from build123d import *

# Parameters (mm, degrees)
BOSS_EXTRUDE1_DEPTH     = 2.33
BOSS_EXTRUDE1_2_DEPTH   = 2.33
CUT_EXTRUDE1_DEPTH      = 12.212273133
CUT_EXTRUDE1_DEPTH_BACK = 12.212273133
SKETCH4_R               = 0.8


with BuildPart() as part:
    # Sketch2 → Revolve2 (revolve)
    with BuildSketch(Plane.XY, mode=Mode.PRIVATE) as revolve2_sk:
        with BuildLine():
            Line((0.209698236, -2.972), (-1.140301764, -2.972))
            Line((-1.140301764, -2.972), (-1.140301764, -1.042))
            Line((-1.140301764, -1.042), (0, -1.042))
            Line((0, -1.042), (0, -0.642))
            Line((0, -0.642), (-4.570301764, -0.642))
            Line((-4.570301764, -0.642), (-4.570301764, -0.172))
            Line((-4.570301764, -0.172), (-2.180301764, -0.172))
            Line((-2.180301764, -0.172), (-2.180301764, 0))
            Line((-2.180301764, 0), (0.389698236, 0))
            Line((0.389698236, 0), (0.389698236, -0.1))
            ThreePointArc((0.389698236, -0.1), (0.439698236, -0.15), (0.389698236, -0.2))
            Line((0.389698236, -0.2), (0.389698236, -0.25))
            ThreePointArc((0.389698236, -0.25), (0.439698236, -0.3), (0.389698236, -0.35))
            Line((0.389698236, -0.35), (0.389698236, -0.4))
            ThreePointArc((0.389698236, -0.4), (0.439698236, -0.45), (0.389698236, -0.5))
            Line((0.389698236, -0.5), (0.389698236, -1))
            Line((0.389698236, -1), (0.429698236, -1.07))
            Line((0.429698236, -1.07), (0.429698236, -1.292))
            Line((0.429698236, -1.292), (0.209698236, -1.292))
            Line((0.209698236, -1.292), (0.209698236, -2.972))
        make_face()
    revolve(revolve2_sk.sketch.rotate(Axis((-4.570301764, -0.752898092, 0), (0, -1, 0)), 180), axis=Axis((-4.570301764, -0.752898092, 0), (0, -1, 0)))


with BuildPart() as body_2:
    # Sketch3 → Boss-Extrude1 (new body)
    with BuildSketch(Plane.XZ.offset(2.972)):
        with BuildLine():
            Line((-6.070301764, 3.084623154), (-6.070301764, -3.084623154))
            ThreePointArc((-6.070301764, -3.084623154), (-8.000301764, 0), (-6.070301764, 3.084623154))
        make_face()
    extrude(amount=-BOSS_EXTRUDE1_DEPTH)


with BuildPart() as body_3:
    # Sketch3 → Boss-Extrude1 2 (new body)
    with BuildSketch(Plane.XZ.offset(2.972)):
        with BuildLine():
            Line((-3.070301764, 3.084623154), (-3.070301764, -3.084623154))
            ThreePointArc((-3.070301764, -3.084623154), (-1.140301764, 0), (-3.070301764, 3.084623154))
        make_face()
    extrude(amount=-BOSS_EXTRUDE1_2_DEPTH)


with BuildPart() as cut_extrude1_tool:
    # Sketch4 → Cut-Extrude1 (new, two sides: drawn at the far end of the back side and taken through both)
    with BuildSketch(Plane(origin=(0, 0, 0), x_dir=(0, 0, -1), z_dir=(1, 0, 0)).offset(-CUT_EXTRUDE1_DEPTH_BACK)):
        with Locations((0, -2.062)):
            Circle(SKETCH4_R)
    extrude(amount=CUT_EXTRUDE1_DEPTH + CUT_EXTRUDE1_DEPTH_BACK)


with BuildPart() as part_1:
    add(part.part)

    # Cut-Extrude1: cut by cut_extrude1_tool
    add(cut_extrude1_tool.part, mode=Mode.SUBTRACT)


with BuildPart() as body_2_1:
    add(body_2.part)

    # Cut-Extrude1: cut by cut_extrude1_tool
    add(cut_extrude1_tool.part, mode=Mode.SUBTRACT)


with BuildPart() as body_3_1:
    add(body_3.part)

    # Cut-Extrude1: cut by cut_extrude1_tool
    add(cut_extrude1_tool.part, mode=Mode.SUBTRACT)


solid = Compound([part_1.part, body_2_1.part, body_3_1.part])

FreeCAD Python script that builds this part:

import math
import FreeCAD as App
import Part
import Sketcher
from FreeCAD import Vector
Q = App.Units.Quantity

doc = App.newDocument("Part")
body = doc.addObject("PartDesign::Body", "Body")

# Sketch on XY plane
sketch1 = body.newObject("Sketcher::SketchObject", "Sketch")
sketch1.AttachmentSupport = (doc.getObject("XY_Plane"), [""])
sketch1.MapMode = "FlatFace"
sketch1.addGeometry(Part.LineSegment(Vector(-1.140302, -2.972, 0), Vector(0.209698, -2.972, 0)), False)
sketch1.addGeometry(Part.LineSegment(Vector(0.209698, -2.972, 0), Vector(0.209698, -1.292, 0)), False)
sketch1.addGeometry(Part.LineSegment(Vector(0.209698, -1.292, 0), Vector(0.429698, -1.292, 0)), False)
sketch1.addGeometry(Part.LineSegment(Vector(0.429698, -1.292, 0), Vector(0.429698, -1.07, 0)), False)
sketch1.addGeometry(Part.LineSegment(Vector(0.429698, -1.07, 0), Vector(0.389698, -1, 0)), False)
sketch1.addGeometry(Part.LineSegment(Vector(0.389698, -1, 0), Vector(0.389698, -0.5, 0)), False)
sketch1.addGeometry(Part.ArcOfCircle(Part.Circle(Vector(0.389698, -0.45, 0), Vector(0, 0, 1), 0.05), math.radians(-90), math.radians(90)), False)
sketch1.addGeometry(Part.LineSegment(Vector(0.389698, -0.4, 0), Vector(0.389698, -0.35, 0)), False)
sketch1.addGeometry(Part.ArcOfCircle(Part.Circle(Vector(0.389698, -0.3, 0), Vector(0, 0, 1), 0.05), math.radians(-90), math.radians(90)), False)
sketch1.addGeometry(Part.LineSegment(Vector(0.389698, -0.25, 0), Vector(0.389698, -0.2, 0)), False)
sketch1.addGeometry(Part.ArcOfCircle(Part.Circle(Vector(0.389698, -0.15, 0), Vector(0, 0, 1), 0.05), math.radians(-90), math.radians(90)), False)
sketch1.addGeometry(Part.LineSegment(Vector(0.389698, -0.1, 0), Vector(0.389698, 0, 0)), False)
sketch1.addGeometry(Part.LineSegment(Vector(0.389698, 0, 0), Vector(-2.180302, 0, 0)), False)
sketch1.addGeometry(Part.LineSegment(Vector(-2.180302, 0, 0), Vector(-2.180302, -0.172, 0)), False)
sketch1.addGeometry(Part.LineSegment(Vector(-2.180302, -0.172, 0), Vector(-4.570302, -0.172, 0)), False)
sketch1.addGeometry(Part.LineSegment(Vector(-4.570302, -0.172, 0), Vector(-4.570302, -0.642, 0)), False)
sketch1.addGeometry(Part.LineSegment(Vector(-4.570302, -0.642, 0), Vector(0, -0.642, 0)), False)
sketch1.addGeometry(Part.LineSegment(Vector(0, -0.642, 0), Vector(0, -1.042, 0)), False)
sketch1.addGeometry(Part.LineSegment(Vector(0, -1.042, 0), Vector(-1.140302, -1.042, 0)), False)
sketch1.addGeometry(Part.LineSegment(Vector(-1.140302, -1.042, 0), Vector(-1.140302, -2.972, 0)), False)
sketch1.addGeometry(Part.LineSegment(Vector(-4.570302, 0, 0), Vector(-4.570302, -2.972, 0)), True)  # axis
sketch1.addConstraint(Sketcher.Constraint("Coincident", 0, 2, 1, 1))
sketch1.addConstraint(Sketcher.Constraint("Coincident", 1, 2, 2, 1))
sketch1.addConstraint(Sketcher.Constraint("Coincident", 2, 2, 3, 1))
sketch1.addConstraint(Sketcher.Constraint("Coincident", 3, 2, 4, 1))
sketch1.addConstraint(Sketcher.Constraint("Coincident", 4, 2, 5, 1))
sketch1.addConstraint(Sketcher.Constraint("Coincident", 5, 2, 6, 1))
sketch1.addConstraint(Sketcher.Constraint("Coincident", 6, 2, 7, 1))
sketch1.addConstraint(Sketcher.Constraint("Coincident", 7, 2, 8, 1))
sketch1.addConstraint(Sketcher.Constraint("Coincident", 8, 2, 9, 1))
sketch1.addConstraint(Sketcher.Constraint("Coincident", 9, 2, 10, 1))
sketch1.addConstraint(Sketcher.Constraint("Coincident", 10, 2, 11, 1))
sketch1.addConstraint(Sketcher.Constraint("Coincident", 11, 2, 12, 1))
sketch1.addConstraint(Sketcher.Constraint("Coincident", 12, 2, 13, 1))
sketch1.addConstraint(Sketcher.Constraint("Coincident", 13, 2, 14, 1))
sketch1.addConstraint(Sketcher.Constraint("Coincident", 14, 2, 15, 1))
sketch1.addConstraint(Sketcher.Constraint("Coincident", 15, 2, 16, 1))
sketch1.addConstraint(Sketcher.Constraint("Coincident", 16, 2, 17, 1))
sketch1.addConstraint(Sketcher.Constraint("Coincident", 17, 2, 18, 1))
sketch1.addConstraint(Sketcher.Constraint("Coincident", 18, 2, 19, 1))
sketch1.addConstraint(Sketcher.Constraint("Coincident", 19, 2, 0, 1))
sketch1.addConstraint(Sketcher.Constraint("Horizontal", 0))
sketch1.addConstraint(Sketcher.Constraint("Vertical", 1))
sketch1.addConstraint(Sketcher.Constraint("Horizontal", 2))
sketch1.addConstraint(Sketcher.Constraint("Vertical", 3))
sketch1.addConstraint(Sketcher.Constraint("Vertical", 5))
sketch1.addConstraint(Sketcher.Constraint("Vertical", 7))
sketch1.addConstraint(Sketcher.Constraint("Vertical", 9))
sketch1.addConstraint(Sketcher.Constraint("Vertical", 11))
sketch1.addConstraint(Sketcher.Constraint("Horizontal", 12))
sketch1.addConstraint(Sketcher.Constraint("Vertical", 13))
sketch1.addConstraint(Sketcher.Constraint("Horizontal", 14))
sketch1.addConstraint(Sketcher.Constraint("Vertical", 15))
sketch1.addConstraint(Sketcher.Constraint("Horizontal", 16))
sketch1.addConstraint(Sketcher.Constraint("Vertical", 17))
sketch1.addConstraint(Sketcher.Constraint("Horizontal", 18))
sketch1.addConstraint(Sketcher.Constraint("Vertical", 19))
sketch1.addConstraint(Sketcher.Constraint("Vertical", 20))
sketch1.addConstraint(Sketcher.Constraint("Equal", 6, 8))
sketch1.addConstraint(Sketcher.Constraint("Equal", 8, 10))
sketch1.addConstraint(Sketcher.Constraint("PointOnObject", 11, 2, -1))
sketch1.addConstraint(Sketcher.Constraint("PointOnObject", 16, 2, -2))
sketch1.addConstraint(Sketcher.Constraint("PointOnObject", 20, 1, -1))
sketch1.addConstraint(Sketcher.Constraint("Horizontal", 19, 2, 20, 2))
sketch1.addConstraint(Sketcher.Constraint("Vertical", 6, 3, 8, 3))
sketch1.addConstraint(Sketcher.Constraint("Vertical", 8, 3, 10, 3))
sketch1.addConstraint(Sketcher.Constraint("Vertical", 10, 3, 4, 2))
sketch1.addConstraint(Sketcher.Constraint("Vertical", 5, 2, 6, 2))
sketch1.addConstraint(Sketcher.Constraint("Vertical", 7, 2, 8, 2))
sketch1.addConstraint(Sketcher.Constraint("Vertical", 9, 2, 10, 2))
sketch1.addConstraint(Sketcher.Constraint("Vertical", 15, 2, 20, 1))
sketch1.addConstraint(Sketcher.Constraint("Equal", 7, 9))
sketch1.addConstraint(Sketcher.Constraint("Radius", 6, Q("0.05 mm")))
sketch1.addConstraint(Sketcher.Constraint("DistanceY", 5, 1, 5, 2, Q("0.5 mm")))
sketch1.addConstraint(Sketcher.Constraint("DistanceY", 11, 1, 11, 2, Q("0.1 mm")))
sketch1.addConstraint(Sketcher.Constraint("DistanceY", 17, 2, 17, 1, Q("0.4 mm")))
sketch1.addConstraint(Sketcher.Constraint("DistanceY", 4, 2, -1, 1, Q("1 mm")))
sketch1.addConstraint(Sketcher.Constraint("DistanceX", 0, 1, 0, 2, Q("1.35 mm")))
sketch1.addConstraint(Sketcher.Constraint("DistanceX", 2, 1, 2, 2, Q("0.22 mm")))
sketch1.addConstraint(Sketcher.Constraint("DistanceX", 12, 2, 12, 1, Q("2.57 mm")))
sketch1.addConstraint(Sketcher.Constraint("DistanceX", 14, 2, 14, 1, Q("2.39 mm")))
sketch1.addConstraint(Sketcher.Constraint("DistanceY", 1, 1, 1, 2, Q("1.68 mm")))
sketch1.addConstraint(Sketcher.Constraint("DistanceY", 15, 2, 15, 1, Q("0.47 mm")))
sketch1.addConstraint(Sketcher.Constraint("DistanceY", 19, 2, 19, 1, Q("1.93 mm")))
sketch1.addConstraint(Sketcher.Constraint("DistanceY", 3, 1, 3, 2, Q("0.222 mm")))
sketch1.addConstraint(Sketcher.Constraint("DistanceY", 13, 2, 13, 1, Q("0.172 mm")))
sketch1.addConstraint(Sketcher.Constraint("DistanceX", 0, 2, 6, 3, Q("0.18 mm")))
sketch1.addConstraint(Sketcher.Constraint("DistanceX", 16, 1, 16, 2, Q("4.570302 mm")))
revolution = body.newObject("PartDesign::Revolution", "Revolution")
revolution.Profile = sketch1
revolution.ReferenceAxis = (sketch1, ["Axis0"])
revolution.Angle = 360
body2 = doc.addObject("PartDesign::Body", "Body001")

# Sketch on XZ plane
sketch2 = body2.newObject("Sketcher::SketchObject", "Sketch001")
sketch2.AttachmentSupport = (doc.getObject("XZ_Plane001"), [""])
sketch2.MapMode = "FlatFace"
sketch2.AttachmentOffset = App.Placement(Vector(0, 0, 2.972), App.Rotation())
sketch2.addGeometry(Part.LineSegment(Vector(-6.070302, -3.084623, 0), Vector(-6.070302, 3.084623, 0)), False)
sketch2.addGeometry(Part.ArcOfCircle(Part.Circle(Vector(-4.570302, 0, 0), Vector(0, 0, 1), 3.43), math.radians(115.93287), math.radians(244.06713)), False)
sketch2.addConstraint(Sketcher.Constraint("Coincident", 0, 1, 1, 2))
sketch2.addConstraint(Sketcher.Constraint("Coincident", 1, 1, 0, 2))
sketch2.addConstraint(Sketcher.Constraint("Vertical", 0))
sketch2.addConstraint(Sketcher.Constraint("PointOnObject", 1, 3, -1))
sketch2.addConstraint(Sketcher.Constraint("Radius", 1, Q("3.43 mm")))
sketch2.addConstraint(Sketcher.Constraint("DistanceX", 0, 1, 1, 3, Q("1.5 mm")))
sketch2.addConstraint(Sketcher.Constraint("DistanceX", 1, 3, -1, 1, Q("4.570302 mm")))
pad1 = body2.newObject("PartDesign::Pad", "Pad")
pad1.Profile = sketch2
pad1.Length = 2.33
pad1.Reversed = True
body3 = doc.addObject("PartDesign::Body", "Body002")

# Sketch on XZ plane
sketch3 = body3.newObject("Sketcher::SketchObject", "Sketch002")
sketch3.AttachmentSupport = (doc.getObject("XZ_Plane002"), [""])
sketch3.MapMode = "FlatFace"
sketch3.AttachmentOffset = App.Placement(Vector(0, 0, 2.972), App.Rotation())
sketch3.addGeometry(Part.LineSegment(Vector(-3.070302, 3.084623, 0), Vector(-3.070302, -3.084623, 0)), False)
sketch3.addGeometry(Part.ArcOfCircle(Part.Circle(Vector(-4.570302, 0, 0), Vector(0, 0, 1), 3.43), math.radians(-64.06713), math.radians(64.06713)), False)
sketch3.addConstraint(Sketcher.Constraint("Coincident", 0, 1, 1, 2))
sketch3.addConstraint(Sketcher.Constraint("Coincident", 1, 1, 0, 2))
sketch3.addConstraint(Sketcher.Constraint("Vertical", 0))
sketch3.addConstraint(Sketcher.Constraint("PointOnObject", 1, 3, -1))
sketch3.addConstraint(Sketcher.Constraint("Radius", 1, Q("3.43 mm")))
sketch3.addConstraint(Sketcher.Constraint("DistanceX", 1, 3, 0, 1, Q("1.5 mm")))
sketch3.addConstraint(Sketcher.Constraint("DistanceX", 1, 3, -1, 1, Q("4.570302 mm")))
pad2 = body3.newObject("PartDesign::Pad", "Pad001")
pad2.Profile = sketch3
pad2.Length = 2.33
pad2.Reversed = True
body4 = doc.addObject("PartDesign::Body", "Body003")

# Sketch on YZ plane
sketch4 = body4.newObject("Sketcher::SketchObject", "Sketch003")
sketch4.AttachmentSupport = (doc.getObject("YZ_Plane003"), [""])
sketch4.MapMode = "FlatFace"
sketch4.addGeometry(Part.Circle(Vector(-2.062, 0, 0), Vector(0, 0, 1), 0.8), False)
sketch4.addConstraint(Sketcher.Constraint("PointOnObject", 0, 3, -1))
sketch4.addConstraint(Sketcher.Constraint("Diameter", 0, Q("1.6 mm")))
sketch4.addConstraint(Sketcher.Constraint("DistanceX", 0, 3, -1, 1, Q("2.062 mm")))
pad3 = body4.newObject("PartDesign::Pad", "Pad002")
pad3.Profile = sketch4
pad3.Type = "TwoLengths"
pad3.Length = 12.212273
pad3.Length2 = 12.212273
doc.recompute()

body5 = doc.addObject("PartDesign::Body", "Body004")
body5.BaseFeature = body4
boolean = body.newObject("PartDesign::Boolean", "Boolean")
boolean.Type = "Cut"
boolean.addObjects([body5])
doc.recompute()

body6 = doc.addObject("PartDesign::Body", "Body005")
body6.BaseFeature = body4
boolean2 = body2.newObject("PartDesign::Boolean", "Boolean001")
boolean2.Type = "Cut"
boolean2.addObjects([body6])
doc.recompute()

boolean3 = body3.newObject("PartDesign::Boolean", "Boolean002")
boolean3.Type = "Cut"
boolean3.addObjects([body4])

doc.recompute()
